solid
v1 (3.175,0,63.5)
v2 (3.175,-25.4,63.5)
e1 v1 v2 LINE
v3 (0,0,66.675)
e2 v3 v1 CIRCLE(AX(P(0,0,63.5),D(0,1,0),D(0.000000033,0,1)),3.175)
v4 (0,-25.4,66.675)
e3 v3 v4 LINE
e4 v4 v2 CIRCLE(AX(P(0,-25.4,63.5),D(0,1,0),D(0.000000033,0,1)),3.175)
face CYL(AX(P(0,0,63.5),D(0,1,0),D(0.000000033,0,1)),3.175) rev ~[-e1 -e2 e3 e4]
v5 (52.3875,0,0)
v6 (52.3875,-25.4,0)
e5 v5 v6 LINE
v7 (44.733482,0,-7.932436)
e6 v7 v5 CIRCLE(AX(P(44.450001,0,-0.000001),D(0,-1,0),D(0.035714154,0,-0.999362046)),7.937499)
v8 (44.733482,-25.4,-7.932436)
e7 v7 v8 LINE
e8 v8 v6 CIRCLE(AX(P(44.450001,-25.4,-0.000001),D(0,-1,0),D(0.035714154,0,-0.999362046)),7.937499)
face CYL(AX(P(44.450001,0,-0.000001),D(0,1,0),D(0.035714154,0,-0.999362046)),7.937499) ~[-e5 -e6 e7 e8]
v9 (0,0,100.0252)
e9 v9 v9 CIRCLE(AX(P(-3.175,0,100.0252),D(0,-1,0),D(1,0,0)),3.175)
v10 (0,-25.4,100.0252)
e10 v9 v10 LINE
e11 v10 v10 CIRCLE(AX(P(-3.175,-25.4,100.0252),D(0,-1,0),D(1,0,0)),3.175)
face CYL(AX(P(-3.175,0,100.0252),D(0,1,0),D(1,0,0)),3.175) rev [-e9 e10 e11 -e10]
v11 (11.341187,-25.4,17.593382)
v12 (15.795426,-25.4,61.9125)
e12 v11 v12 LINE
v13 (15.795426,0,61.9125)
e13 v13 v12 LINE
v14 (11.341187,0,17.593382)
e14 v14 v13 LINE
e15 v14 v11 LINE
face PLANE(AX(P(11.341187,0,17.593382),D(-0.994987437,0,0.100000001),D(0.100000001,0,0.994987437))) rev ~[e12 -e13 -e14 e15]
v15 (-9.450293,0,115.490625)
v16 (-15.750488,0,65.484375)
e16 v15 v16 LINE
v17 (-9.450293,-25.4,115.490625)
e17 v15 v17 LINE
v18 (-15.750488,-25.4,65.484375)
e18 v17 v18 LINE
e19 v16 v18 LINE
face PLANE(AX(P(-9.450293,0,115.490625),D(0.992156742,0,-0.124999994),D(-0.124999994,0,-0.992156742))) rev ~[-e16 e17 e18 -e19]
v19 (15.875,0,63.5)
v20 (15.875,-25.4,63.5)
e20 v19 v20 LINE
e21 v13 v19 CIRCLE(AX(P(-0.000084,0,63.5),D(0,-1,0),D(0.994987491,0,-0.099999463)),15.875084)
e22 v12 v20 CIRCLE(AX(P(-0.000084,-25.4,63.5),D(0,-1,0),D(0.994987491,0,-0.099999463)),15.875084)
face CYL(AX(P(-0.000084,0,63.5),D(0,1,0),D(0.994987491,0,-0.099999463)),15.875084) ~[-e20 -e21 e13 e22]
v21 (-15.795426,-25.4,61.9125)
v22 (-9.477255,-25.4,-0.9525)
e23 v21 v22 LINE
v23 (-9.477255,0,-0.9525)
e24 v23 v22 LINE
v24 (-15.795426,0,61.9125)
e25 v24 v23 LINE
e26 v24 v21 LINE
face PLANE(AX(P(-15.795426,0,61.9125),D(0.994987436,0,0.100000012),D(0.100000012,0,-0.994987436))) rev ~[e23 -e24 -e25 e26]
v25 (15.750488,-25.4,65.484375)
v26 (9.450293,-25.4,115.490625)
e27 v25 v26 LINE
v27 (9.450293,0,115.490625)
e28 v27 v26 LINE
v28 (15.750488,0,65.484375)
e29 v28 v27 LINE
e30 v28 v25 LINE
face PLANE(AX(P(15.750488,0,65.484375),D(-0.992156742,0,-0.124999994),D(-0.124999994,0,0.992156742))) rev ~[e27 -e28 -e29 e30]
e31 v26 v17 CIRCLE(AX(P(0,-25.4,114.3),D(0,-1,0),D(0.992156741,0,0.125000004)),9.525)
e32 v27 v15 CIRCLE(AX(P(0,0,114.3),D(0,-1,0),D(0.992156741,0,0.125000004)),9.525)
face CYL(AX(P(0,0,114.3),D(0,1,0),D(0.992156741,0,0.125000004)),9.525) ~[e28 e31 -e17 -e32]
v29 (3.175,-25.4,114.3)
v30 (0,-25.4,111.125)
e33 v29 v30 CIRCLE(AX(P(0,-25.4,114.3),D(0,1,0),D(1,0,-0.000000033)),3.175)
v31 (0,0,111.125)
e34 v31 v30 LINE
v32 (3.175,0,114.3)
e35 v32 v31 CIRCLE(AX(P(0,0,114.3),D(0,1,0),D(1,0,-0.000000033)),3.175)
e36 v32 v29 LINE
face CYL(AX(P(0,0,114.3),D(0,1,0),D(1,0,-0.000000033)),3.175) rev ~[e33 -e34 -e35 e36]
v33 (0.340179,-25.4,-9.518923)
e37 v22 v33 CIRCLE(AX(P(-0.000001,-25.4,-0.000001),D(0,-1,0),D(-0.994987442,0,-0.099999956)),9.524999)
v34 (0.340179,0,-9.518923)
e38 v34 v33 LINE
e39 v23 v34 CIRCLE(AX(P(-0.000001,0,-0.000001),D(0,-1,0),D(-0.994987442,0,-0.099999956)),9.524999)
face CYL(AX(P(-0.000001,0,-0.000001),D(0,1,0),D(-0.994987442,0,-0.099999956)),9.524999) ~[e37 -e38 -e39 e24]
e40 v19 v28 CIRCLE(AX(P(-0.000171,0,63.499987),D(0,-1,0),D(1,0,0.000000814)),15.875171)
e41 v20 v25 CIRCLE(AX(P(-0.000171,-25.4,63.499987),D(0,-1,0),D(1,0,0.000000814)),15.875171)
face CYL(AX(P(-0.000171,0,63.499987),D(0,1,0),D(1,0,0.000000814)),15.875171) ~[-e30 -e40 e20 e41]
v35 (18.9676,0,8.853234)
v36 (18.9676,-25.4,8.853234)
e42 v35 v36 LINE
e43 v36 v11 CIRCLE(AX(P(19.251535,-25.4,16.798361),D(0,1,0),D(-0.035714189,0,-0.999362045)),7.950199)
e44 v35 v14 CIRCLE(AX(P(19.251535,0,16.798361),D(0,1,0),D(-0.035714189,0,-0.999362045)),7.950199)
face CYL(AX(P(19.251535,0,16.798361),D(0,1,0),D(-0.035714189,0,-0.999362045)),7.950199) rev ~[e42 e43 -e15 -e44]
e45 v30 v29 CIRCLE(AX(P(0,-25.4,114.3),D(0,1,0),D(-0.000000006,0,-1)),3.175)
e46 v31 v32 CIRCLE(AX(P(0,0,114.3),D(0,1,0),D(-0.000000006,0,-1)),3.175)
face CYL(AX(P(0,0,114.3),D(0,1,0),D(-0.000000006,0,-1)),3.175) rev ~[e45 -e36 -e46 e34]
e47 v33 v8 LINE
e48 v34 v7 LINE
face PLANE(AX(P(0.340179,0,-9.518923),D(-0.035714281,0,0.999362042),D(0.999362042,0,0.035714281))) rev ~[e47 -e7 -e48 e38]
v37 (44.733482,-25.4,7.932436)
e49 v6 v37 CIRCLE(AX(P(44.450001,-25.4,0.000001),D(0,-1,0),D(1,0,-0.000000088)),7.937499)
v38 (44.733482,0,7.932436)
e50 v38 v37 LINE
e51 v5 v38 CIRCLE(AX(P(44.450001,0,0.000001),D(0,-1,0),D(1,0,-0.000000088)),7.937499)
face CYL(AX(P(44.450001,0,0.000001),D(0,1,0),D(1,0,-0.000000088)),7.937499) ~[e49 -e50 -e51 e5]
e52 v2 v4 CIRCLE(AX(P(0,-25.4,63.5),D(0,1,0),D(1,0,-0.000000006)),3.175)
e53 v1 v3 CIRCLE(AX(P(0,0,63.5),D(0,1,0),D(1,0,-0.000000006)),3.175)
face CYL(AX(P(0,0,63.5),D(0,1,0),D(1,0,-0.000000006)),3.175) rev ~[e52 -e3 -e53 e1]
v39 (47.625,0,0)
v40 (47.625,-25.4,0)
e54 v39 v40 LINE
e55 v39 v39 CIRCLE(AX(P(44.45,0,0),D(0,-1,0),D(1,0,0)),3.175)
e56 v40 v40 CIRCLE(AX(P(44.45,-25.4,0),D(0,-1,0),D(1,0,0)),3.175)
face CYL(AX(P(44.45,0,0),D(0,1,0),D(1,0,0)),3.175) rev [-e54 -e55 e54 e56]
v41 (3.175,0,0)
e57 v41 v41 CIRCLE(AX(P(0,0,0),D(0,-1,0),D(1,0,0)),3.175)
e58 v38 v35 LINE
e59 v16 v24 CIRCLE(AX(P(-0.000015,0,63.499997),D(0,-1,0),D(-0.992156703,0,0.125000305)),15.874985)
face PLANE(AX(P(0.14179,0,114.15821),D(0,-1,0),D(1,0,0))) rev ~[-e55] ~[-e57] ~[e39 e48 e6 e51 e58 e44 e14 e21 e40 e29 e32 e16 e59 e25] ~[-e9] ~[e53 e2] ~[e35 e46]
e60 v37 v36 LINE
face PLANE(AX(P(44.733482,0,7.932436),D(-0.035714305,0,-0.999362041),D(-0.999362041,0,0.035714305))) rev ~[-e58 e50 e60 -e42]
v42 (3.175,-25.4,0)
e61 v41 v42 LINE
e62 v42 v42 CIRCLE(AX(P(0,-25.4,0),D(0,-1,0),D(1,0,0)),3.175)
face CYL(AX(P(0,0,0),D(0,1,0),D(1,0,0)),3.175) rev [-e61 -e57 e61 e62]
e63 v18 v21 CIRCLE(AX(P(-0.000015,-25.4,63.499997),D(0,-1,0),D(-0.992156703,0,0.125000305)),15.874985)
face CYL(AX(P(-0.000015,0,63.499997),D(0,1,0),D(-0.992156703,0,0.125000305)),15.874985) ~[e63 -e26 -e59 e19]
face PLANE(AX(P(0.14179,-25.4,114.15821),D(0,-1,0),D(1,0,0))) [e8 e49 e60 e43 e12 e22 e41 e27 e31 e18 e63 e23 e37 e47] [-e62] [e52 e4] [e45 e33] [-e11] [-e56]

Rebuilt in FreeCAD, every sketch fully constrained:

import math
import FreeCAD as App
import Part
import Sketcher
from FreeCAD import Vector
Q = App.Units.Quantity

doc = App.newDocument("Part")
body = doc.addObject("PartDesign::Body", "Body")

# Sketch on XZ plane
sketch1 = body.newObject("Sketcher::SketchObject", "Sketch")
sketch1.AttachmentSupport = (doc.getObject("XZ_Plane"), [""])
sketch1.MapMode = "FlatFace"
sketch1.addGeometry([
    Part.LineSegment(Vector(15.750488, 65.484375, 0), Vector(9.450293, 115.490625, 0)),  # 0
    Part.ArcOfCircle(Part.Circle(Vector(0, 114.3, 0), Vector(0, 0, 1), 9.525), math.radians(7.180756), math.radians(172.819244)),  # 1
    Part.LineSegment(Vector(-9.450293, 115.490625, 0), Vector(-15.750488, 65.484375, 0)),  # 2
    Part.ArcOfCircle(Part.Circle(Vector(-0.000015, 63.499997, 0), Vector(0, 0, 1), 15.874985), math.radians(172.819227), math.radians(185.739165)),  # 3
    Part.LineSegment(Vector(-15.795426, 61.9125, 0), Vector(-9.477255, -0.9525, 0)),  # 4
    Part.ArcOfCircle(Part.Circle(Vector(-0.000001, -0.000001, 0), Vector(0, 0, 1), 9.524999), math.radians(-174.260832), math.radians(-87.953281)),  # 5
    Part.LineSegment(Vector(0.340179, -9.518923, 0), Vector(44.733482, -7.932436, 0)),  # 6
    Part.ArcOfCircle(Part.Circle(Vector(44.450001, -0.000001, 0), Vector(0, 0, 1), 7.937499), math.radians(-87.953294), math.radians(0.000005)),  # 7
    Part.ArcOfCircle(Part.Circle(Vector(44.450001, 0.000001, 0), Vector(0, 0, 1), 7.937499), math.radians(-0.000005), math.radians(87.953294)),  # 8
    Part.LineSegment(Vector(44.733482, 7.932436, 0), Vector(18.9676, 8.853234, 0)),  # 9
    Part.ArcOfCircle(Part.Circle(Vector(19.251535, 16.798361, 0), Vector(0, 0, 1), 7.950199), math.radians(174.260822), math.radians(267.953292)),  # 10
    Part.LineSegment(Vector(11.341187, 17.593382, 0), Vector(15.795426, 61.9125, 0)),  # 11
    Part.ArcOfCircle(Part.Circle(Vector(-0.000084, 63.5, 0), Vector(0, 0, 1), 15.875084), math.radians(-5.73914), math.radians(0)),  # 12
    Part.ArcOfCircle(Part.Circle(Vector(-0.000171, 63.499987, 0), Vector(0, 0, 1), 15.875171), math.radians(0.000047), math.radians(7.180725)),  # 13
    Part.Circle(Vector(0, 0, 0), Vector(0, 0, 1), 3.175),  # 14
    Part.Circle(Vector(44.45, 0, 0), Vector(0, 0, 1), 3.175),  # 15
    Part.ArcOfCircle(Part.Circle(Vector(0, 63.5, 0), Vector(0, 0, 1), 3.175), math.radians(0.000002), math.radians(89.999998)),  # 16
    Part.ArcOfCircle(Part.Circle(Vector(0, 63.5, 0), Vector(0, 0, 1), 3.175), math.radians(90), math.radians(360)),  # 17
    Part.Circle(Vector(-3.175, 100.0252, 0), Vector(0, 0, 1), 3.175),  # 18
    Part.ArcOfCircle(Part.Circle(Vector(0, 114.3, 0), Vector(0, 0, 1), 3.175), math.radians(0), math.radians(270)),  # 19
    Part.ArcOfCircle(Part.Circle(Vector(0, 114.3, 0), Vector(0, 0, 1), 3.175), math.radians(-89.999998), math.radians(-0.000002)),  # 20
], False)
sketch1.addConstraint([
    Sketcher.Constraint("Coincident", 0, 2, 1, 1),
    Sketcher.Constraint("Coincident", 1, 2, 2, 1),
    Sketcher.Constraint("Coincident", 2, 2, 3, 1),
    Sketcher.Constraint("Coincident", 3, 2, 4, 1),
    Sketcher.Constraint("Coincident", 4, 2, 5, 1),
    Sketcher.Constraint("Coincident", 5, 2, 6, 1),
    Sketcher.Constraint("Coincident", 6, 2, 7, 1),
    Sketcher.Constraint("Coincident", 7, 2, 8, 1),
    Sketcher.Constraint("Coincident", 8, 2, 9, 1),
    Sketcher.Constraint("Coincident", 9, 2, 10, 2),
    Sketcher.Constraint("Coincident", 10, 1, 11, 1),
    Sketcher.Constraint("Coincident", 11, 2, 12, 1),
    Sketcher.Constraint("Coincident", 12, 2, 13, 1),
    Sketcher.Constraint("Coincident", 13, 2, 0, 1),
    Sketcher.Constraint("Coincident", 16, 1, 17, 2),
    Sketcher.Constraint("Coincident", 17, 1, 16, 2),
    Sketcher.Constraint("Coincident", 19, 1, 20, 2),
    Sketcher.Constraint("Coincident", 20, 1, 19, 2),
    Sketcher.Constraint("Coincident", 5, 3, -1, 1),
    Sketcher.Constraint("Coincident", 14, 3, -1, 1),
    Sketcher.Constraint("Coincident", 8, 3, 7, 3),
    Sketcher.Constraint("Coincident", 15, 3, 7, 3),
    Sketcher.Constraint("Coincident", 19, 3, 1, 3),
    Sketcher.Constraint("PointOnObject", 1, 3, -2),
    Sketcher.Constraint("PointOnObject", 7, 3, -1),
    Sketcher.Constraint("PointOnObject", 16, 3, -2),
    Sketcher.Constraint("PointOnObject", 17, 3, -2),
    Sketcher.Constraint("PointOnObject", 20, 3, -2),
    Sketcher.Constraint("PointOnObject", 7, 2, -1),
    Sketcher.Constraint("PointOnObject", 17, 1, -2),
    Sketcher.Constraint("PointOnObject", 20, 1, -2),
    Sketcher.Constraint("Diameter", 14, Q("0.25 in")),
    Sketcher.Constraint("Diameter", 15, Q("0.25 in")),
    Sketcher.Constraint("Diameter", 18, Q("0.25 in")),
    Sketcher.Constraint("Radius", 1, Q("0.375 in")),
    Sketcher.Constraint("Radius", 5, Q("0.375 in")),
    Sketcher.Constraint("Radius", 7, Q("0.3125 in")),
    Sketcher.Constraint("Radius", 10, Q("0.313 in")),
    Sketcher.Constraint("Radius", 16, Q("0.125 in")),
    Sketcher.Constraint("Radius", 19, Q("0.125 in")),
    Sketcher.Constraint("DistanceY", 3, 3, 1, 3, Q("2.0000001 in")),
    Sketcher.Constraint("DistanceY", 12, 3, 1, 3, Q("2 in")),
    Sketcher.Constraint("DistanceY", 16, 3, 1, 3, Q("2 in")),
    Sketcher.Constraint("DistanceY", -1, 1, 1, 3, Q("4.5 in")),
    Sketcher.Constraint("DistanceY", -1, 1, 12, 2, Q("2.5 in")),
    Sketcher.Constraint("DistanceY", -1, 1, 16, 1, Q("2.5 in")),
    Sketcher.Constraint("DistanceY", -1, 1, 19, 1, Q("4.5 in")),
    Sketcher.Constraint("DistanceX", -1, 1, 7, 3, Q("1.75 in")),
    Sketcher.Constraint("DistanceX", 18, 3, -1, 1, Q("0.125 in")),
    Sketcher.Constraint("DistanceY", -1, 1, 18, 3, Q("3.938 in")),
    Sketcher.Constraint("DistanceY", -1, 1, 0, 2, Q("4.546875 in")),
    Sketcher.Constraint("DistanceY", -1, 1, 1, 2, Q("4.546875 in")),
    Sketcher.Constraint("DistanceY", -1, 1, 2, 2, Q("2.578125 in")),
    Sketcher.Constraint("DistanceY", -1, 1, 3, 2, Q("2.4375 in")),
    Sketcher.Constraint("DistanceY", -1, 1, 11, 2, Q("2.4375 in")),
    Sketcher.Constraint("DistanceX", -1, 1, 12, 2, Q("0.625 in")),
    Sketcher.Constraint("DistanceY", -1, 1, 13, 2, Q("2.578125 in")),
    Sketcher.Constraint("Radius", 13, Q("15.875171 mm")),
    Sketcher.Constraint("DistanceY", 4, 2, -1, 1, Q("0.0375 in")),
    Sketcher.Constraint("Radius", 3, Q("15.874985 mm")),
    Sketcher.Constraint("Radius", 12, Q("15.875084 mm")),
    Sketcher.Constraint("DistanceY", 10, 3, 10, 1, Q("0.0313 in")),
    Sketcher.Constraint("DistanceX", -1, 1, 9, 2, Q("18.9676 mm")),
    Sketcher.Constraint("Distance", 9, Q("25.78233 mm")),
    Sketcher.Constraint("Distance", 11, Q("44.54239 mm")),
    Sketcher.Constraint("DistanceY", -1, 1, 10, 3, Q("16.798361 mm")),
    Sketcher.Constraint("DistanceX", 2, 2, -1, 1, Q("15.750488 mm")),
    Sketcher.Constraint("DistanceX", -1, 1, 5, 2, Q("0.340179 mm")),
    Sketcher.Constraint("DistanceX", -1, 1, 13, 2, Q("15.750488 mm")),
    Sketcher.Constraint("DistanceX", 7, 3, 6, 2, Q("0.283481 mm")),
])
pad1 = body.newObject("PartDesign::Pad", "Pad")
pad1.Profile = sketch1
pad1.Length = Q("1 in")

doc.recompute()
